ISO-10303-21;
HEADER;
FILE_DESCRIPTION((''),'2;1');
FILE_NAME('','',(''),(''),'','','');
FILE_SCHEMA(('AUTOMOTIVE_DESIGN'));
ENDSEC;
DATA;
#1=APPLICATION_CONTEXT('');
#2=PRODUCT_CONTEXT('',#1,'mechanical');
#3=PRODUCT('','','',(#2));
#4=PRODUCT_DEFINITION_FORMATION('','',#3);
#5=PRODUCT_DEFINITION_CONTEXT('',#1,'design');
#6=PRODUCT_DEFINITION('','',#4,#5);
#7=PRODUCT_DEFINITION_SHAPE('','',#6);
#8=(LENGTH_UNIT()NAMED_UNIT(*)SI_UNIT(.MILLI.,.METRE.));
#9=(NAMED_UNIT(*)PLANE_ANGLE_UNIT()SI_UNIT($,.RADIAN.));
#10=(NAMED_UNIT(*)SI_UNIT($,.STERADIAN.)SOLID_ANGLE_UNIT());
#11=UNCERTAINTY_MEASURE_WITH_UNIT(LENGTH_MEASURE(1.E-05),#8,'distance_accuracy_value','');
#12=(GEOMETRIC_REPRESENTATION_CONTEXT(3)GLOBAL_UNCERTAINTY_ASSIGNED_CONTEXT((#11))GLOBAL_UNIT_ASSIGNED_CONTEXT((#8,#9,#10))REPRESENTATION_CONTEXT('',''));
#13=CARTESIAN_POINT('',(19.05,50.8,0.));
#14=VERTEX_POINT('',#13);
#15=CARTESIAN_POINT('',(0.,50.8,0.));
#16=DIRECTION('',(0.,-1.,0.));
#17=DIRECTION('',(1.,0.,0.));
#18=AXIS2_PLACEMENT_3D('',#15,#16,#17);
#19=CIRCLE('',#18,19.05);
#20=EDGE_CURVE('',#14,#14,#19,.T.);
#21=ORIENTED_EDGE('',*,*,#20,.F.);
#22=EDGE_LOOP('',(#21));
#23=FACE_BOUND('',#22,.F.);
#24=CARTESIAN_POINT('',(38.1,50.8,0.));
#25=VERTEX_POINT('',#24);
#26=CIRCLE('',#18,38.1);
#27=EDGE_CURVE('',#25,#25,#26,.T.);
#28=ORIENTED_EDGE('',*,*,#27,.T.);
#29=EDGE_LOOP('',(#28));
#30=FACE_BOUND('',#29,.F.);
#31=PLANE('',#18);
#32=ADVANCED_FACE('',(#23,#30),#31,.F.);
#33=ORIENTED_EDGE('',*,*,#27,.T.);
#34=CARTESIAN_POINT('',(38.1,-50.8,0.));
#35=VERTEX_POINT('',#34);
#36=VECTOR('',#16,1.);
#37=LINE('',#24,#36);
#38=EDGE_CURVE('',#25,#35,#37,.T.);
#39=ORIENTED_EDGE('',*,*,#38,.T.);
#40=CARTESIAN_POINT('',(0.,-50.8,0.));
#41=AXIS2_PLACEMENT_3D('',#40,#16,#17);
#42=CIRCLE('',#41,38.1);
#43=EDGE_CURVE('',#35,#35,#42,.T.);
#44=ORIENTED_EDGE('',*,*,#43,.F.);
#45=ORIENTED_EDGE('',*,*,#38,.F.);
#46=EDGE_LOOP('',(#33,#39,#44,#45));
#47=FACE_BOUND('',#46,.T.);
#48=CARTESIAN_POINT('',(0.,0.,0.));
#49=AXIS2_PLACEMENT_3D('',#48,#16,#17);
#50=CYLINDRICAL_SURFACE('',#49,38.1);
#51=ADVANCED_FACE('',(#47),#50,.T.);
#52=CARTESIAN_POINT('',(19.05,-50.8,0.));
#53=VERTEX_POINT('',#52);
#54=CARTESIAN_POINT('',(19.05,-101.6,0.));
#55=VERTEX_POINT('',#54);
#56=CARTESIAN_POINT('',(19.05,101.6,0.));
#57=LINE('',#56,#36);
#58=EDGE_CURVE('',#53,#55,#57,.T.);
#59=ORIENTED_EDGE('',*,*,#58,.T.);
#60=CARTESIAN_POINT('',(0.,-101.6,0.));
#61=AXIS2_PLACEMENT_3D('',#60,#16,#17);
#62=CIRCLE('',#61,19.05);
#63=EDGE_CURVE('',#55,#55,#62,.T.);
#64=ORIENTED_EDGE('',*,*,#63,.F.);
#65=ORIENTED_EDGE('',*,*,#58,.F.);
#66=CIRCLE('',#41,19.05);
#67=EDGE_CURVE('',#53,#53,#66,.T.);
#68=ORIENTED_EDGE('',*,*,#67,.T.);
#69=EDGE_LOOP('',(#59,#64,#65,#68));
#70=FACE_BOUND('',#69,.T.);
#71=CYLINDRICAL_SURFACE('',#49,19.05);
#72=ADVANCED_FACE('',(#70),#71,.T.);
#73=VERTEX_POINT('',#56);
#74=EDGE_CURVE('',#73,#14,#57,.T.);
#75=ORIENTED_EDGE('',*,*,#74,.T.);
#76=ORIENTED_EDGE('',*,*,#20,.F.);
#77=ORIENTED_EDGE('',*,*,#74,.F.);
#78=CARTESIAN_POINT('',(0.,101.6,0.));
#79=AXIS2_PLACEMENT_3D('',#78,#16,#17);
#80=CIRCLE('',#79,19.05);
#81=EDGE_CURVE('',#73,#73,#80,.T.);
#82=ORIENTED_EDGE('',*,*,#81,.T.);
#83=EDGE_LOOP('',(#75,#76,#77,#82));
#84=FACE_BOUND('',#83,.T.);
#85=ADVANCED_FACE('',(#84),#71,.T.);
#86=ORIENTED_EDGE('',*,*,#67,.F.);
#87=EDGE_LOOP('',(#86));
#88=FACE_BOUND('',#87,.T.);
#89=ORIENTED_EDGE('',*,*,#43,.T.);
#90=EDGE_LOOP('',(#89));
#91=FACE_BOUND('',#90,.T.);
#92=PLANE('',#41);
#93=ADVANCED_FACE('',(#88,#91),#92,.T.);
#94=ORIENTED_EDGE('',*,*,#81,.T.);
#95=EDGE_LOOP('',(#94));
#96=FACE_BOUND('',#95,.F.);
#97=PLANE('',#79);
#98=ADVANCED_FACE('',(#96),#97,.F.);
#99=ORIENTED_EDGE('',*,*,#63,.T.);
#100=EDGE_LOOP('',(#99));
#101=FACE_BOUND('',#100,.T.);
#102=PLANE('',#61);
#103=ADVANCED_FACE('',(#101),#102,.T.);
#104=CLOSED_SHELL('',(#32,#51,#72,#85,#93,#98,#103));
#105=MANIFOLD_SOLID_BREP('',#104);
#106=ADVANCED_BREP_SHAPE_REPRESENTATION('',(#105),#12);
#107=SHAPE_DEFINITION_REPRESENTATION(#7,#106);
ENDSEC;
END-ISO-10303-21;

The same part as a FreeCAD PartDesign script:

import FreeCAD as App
import Part
import Sketcher
from FreeCAD import Vector
Q = App.Units.Quantity

doc = App.newDocument("Part")
body = doc.addObject("PartDesign::Body", "Body")

# Sketch on XZ plane
sketch1 = body.newObject("Sketcher::SketchObject", "Sketch")
sketch1.AttachmentSupport = (doc.getObject("XZ_Plane"), [""])
sketch1.MapMode = "FlatFace"
sketch1.addGeometry(Part.Circle(Vector(0, 0, 0), Vector(0, 0, 1), 38.1), False)
sketch1.addConstraint([
    Sketcher.Constraint("Coincident", 0, 3, -1, 1),
    Sketcher.Constraint("Diameter", 0, Q("3 in")),
])
pad1 = body.newObject("PartDesign::Pad", "Pad")
pad1.Profile = sketch1
pad1.Length = Q("4 in")
pad1.Midplane = True

# Sketch on XZ plane
sketch2 = body.newObject("Sketcher::SketchObject", "Sketch001")
sketch2.AttachmentSupport = (doc.getObject("XZ_Plane"), [""])
sketch2.MapMode = "FlatFace"
sketch2.addGeometry(Part.Circle(Vector(0, 0, 0), Vector(0, 0, 1), 19.05), False)
sketch2.addConstraint([
    Sketcher.Constraint("Coincident", 0, 3, -1, 1),
    Sketcher.Constraint("Diameter", 0, Q("1.5 in")),
])
pad2 = body.newObject("PartDesign::Pad", "Pad001")
pad2.Profile = sketch2
pad2.Length = Q("8 in")
pad2.Midplane = True

doc.recompute()
